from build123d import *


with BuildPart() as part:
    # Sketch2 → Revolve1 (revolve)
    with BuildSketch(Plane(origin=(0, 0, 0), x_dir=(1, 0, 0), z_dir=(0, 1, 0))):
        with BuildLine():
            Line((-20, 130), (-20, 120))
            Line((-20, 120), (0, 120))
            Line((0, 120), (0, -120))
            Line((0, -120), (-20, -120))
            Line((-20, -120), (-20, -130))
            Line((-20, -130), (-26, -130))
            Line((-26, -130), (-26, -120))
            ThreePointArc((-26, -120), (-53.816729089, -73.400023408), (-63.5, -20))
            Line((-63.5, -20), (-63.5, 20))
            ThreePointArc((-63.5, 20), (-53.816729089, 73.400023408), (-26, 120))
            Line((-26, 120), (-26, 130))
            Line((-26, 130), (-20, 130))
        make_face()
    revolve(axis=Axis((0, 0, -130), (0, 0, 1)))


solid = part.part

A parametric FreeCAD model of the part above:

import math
import FreeCAD as App
import Part
import Sketcher
Q = App.Units.Quantity

doc = App.newDocument("Part")
body = doc.addObject("PartDesign::Body", "Body")

# Sketch on XZ plane
sketch1 = doc.addObject("Sketcher::SketchObject", "Sketch")
body.addObject(sketch1)
sketch1.AttachmentSupport = (doc.XZ_Plane, [""])
sketch1.MapMode = "FlatFace"
sketch1.addGeometry(Part.LineSegment(App.Vector(-20, -120, 0), App.Vector(-20, -130, 0)), False)
sketch1.addGeometry(Part.LineSegment(App.Vector(-20, -130, 0), App.Vector(-26, -130, 0)), False)
sketch1.addGeometry(Part.LineSegment(App.Vector(-26, -130, 0), App.Vector(-26, -120, 0)), False)
sketch1.addGeometry(Part.ArcOfCircle(Part.Circle(App.Vector(88.583333, -20, 0), App.Vector(0, 0, 1), 152.083333), math.radians(180), math.radians(221.11209)), False)
sketch1.addGeometry(Part.LineSegment(App.Vector(-63.5, -20, 0), App.Vector(-63.5, 20, 0)), False)
sketch1.addGeometry(Part.ArcOfCircle(Part.Circle(App.Vector(88.583333, 20, 0), App.Vector(0, 0, 1), 152.083333), math.radians(138.88791), math.radians(180)), False)
sketch1.addGeometry(Part.LineSegment(App.Vector(-26, 120, 0), App.Vector(-26, 130, 0)), False)
sketch1.addGeometry(Part.LineSegment(App.Vector(-26, 130, 0), App.Vector(-20, 130, 0)), False)
sketch1.addGeometry(Part.LineSegment(App.Vector(-20, 130, 0), App.Vector(-20, 120, 0)), False)
sketch1.addGeometry(Part.LineSegment(App.Vector(-20, 120, 0), App.Vector(0, 120, 0)), False)
sketch1.addGeometry(Part.LineSegment(App.Vector(0, 120, 0), App.Vector(0, -120, 0)), False)
sketch1.addGeometry(Part.LineSegment(App.Vector(0, -120, 0), App.Vector(-20, -120, 0)), False)
sketch1.addConstraint(Sketcher.Constraint("Coincident", 0, 2, 1, 1))
sketch1.addConstraint(Sketcher.Constraint("Coincident", 1, 2, 2, 1))
sketch1.addConstraint(Sketcher.Constraint("Coincident", 2, 2, 3, 2))
sketch1.addConstraint(Sketcher.Constraint("Tangent", 3, 1, 4, 1))
sketch1.addConstraint(Sketcher.Constraint("Tangent", 4, 2, 5, 2))
sketch1.addConstraint(Sketcher.Constraint("Coincident", 5, 1, 6, 1))
sketch1.addConstraint(Sketcher.Constraint("Coincident", 6, 2, 7, 1))
sketch1.addConstraint(Sketcher.Constraint("Coincident", 7, 2, 8, 1))
sketch1.addConstraint(Sketcher.Constraint("Coincident", 8, 2, 9, 1))
sketch1.addConstraint(Sketcher.Constraint("Coincident", 9, 2, 10, 1))
sketch1.addConstraint(Sketcher.Constraint("Coincident", 10, 2, 11, 1))
sketch1.addConstraint(Sketcher.Constraint("Coincident", 11, 2, 0, 1))
sketch1.addConstraint(Sketcher.Constraint("Vertical", 0))
sketch1.addConstraint(Sketcher.Constraint("Horizontal", 1))
sketch1.addConstraint(Sketcher.Constraint("Vertical", 2))
sketch1.addConstraint(Sketcher.Constraint("Vertical", 4))
sketch1.addConstraint(Sketcher.Constraint("Vertical", 6))
sketch1.addConstraint(Sketcher.Constraint("Horizontal", 7))
sketch1.addConstraint(Sketcher.Constraint("Vertical", 8))
sketch1.addConstraint(Sketcher.Constraint("Horizontal", 9))
sketch1.addConstraint(Sketcher.Constraint("Vertical", 10))
sketch1.addConstraint(Sketcher.Constraint("Horizontal", 11))
sketch1.addConstraint(Sketcher.Constraint("Equal", 3, 5))
sketch1.addConstraint(Sketcher.Constraint("Symmetric", 9, 2, 10, 2, -1, 1))
sketch1.addConstraint(Sketcher.Constraint("Symmetric", 2, 2, 5, 1, -1))
sketch1.addConstraint(Sketcher.Constraint("Symmetric", 0, 2, 7, 2, -1))
sketch1.addConstraint(Sketcher.Constraint("Horizontal", 5, 1, 8, 2))
sketch1.addConstraint(Sketcher.Constraint("DistanceX", 1, 2, 1, 1, Q("6 mm")))
sketch1.addConstraint(Sketcher.Constraint("DistanceX", 9, 1, 9, 2, Q("20 mm")))
sketch1.addConstraint(Sketcher.Constraint("DistanceY", 0, 2, 0, 1, Q("10 mm")))
sketch1.addConstraint(Sketcher.Constraint("DistanceY", 4, 1, 4, 2, Q("40 mm")))
sketch1.addConstraint(Sketcher.Constraint("DistanceY", 10, 2, 10, 1, Q("240 mm")))
sketch1.addConstraint(Sketcher.Constraint("DistanceX", 3, 1, -1, 1, Q("63.5 mm")))
revolution = doc.addObject("PartDesign::Revolution", "Revolution")
body.addObject(revolution)
revolution.Profile = sketch1
revolution.ReferenceAxis = (sketch1, ["V_Axis"])
revolution.Angle = 360

doc.recompute()
